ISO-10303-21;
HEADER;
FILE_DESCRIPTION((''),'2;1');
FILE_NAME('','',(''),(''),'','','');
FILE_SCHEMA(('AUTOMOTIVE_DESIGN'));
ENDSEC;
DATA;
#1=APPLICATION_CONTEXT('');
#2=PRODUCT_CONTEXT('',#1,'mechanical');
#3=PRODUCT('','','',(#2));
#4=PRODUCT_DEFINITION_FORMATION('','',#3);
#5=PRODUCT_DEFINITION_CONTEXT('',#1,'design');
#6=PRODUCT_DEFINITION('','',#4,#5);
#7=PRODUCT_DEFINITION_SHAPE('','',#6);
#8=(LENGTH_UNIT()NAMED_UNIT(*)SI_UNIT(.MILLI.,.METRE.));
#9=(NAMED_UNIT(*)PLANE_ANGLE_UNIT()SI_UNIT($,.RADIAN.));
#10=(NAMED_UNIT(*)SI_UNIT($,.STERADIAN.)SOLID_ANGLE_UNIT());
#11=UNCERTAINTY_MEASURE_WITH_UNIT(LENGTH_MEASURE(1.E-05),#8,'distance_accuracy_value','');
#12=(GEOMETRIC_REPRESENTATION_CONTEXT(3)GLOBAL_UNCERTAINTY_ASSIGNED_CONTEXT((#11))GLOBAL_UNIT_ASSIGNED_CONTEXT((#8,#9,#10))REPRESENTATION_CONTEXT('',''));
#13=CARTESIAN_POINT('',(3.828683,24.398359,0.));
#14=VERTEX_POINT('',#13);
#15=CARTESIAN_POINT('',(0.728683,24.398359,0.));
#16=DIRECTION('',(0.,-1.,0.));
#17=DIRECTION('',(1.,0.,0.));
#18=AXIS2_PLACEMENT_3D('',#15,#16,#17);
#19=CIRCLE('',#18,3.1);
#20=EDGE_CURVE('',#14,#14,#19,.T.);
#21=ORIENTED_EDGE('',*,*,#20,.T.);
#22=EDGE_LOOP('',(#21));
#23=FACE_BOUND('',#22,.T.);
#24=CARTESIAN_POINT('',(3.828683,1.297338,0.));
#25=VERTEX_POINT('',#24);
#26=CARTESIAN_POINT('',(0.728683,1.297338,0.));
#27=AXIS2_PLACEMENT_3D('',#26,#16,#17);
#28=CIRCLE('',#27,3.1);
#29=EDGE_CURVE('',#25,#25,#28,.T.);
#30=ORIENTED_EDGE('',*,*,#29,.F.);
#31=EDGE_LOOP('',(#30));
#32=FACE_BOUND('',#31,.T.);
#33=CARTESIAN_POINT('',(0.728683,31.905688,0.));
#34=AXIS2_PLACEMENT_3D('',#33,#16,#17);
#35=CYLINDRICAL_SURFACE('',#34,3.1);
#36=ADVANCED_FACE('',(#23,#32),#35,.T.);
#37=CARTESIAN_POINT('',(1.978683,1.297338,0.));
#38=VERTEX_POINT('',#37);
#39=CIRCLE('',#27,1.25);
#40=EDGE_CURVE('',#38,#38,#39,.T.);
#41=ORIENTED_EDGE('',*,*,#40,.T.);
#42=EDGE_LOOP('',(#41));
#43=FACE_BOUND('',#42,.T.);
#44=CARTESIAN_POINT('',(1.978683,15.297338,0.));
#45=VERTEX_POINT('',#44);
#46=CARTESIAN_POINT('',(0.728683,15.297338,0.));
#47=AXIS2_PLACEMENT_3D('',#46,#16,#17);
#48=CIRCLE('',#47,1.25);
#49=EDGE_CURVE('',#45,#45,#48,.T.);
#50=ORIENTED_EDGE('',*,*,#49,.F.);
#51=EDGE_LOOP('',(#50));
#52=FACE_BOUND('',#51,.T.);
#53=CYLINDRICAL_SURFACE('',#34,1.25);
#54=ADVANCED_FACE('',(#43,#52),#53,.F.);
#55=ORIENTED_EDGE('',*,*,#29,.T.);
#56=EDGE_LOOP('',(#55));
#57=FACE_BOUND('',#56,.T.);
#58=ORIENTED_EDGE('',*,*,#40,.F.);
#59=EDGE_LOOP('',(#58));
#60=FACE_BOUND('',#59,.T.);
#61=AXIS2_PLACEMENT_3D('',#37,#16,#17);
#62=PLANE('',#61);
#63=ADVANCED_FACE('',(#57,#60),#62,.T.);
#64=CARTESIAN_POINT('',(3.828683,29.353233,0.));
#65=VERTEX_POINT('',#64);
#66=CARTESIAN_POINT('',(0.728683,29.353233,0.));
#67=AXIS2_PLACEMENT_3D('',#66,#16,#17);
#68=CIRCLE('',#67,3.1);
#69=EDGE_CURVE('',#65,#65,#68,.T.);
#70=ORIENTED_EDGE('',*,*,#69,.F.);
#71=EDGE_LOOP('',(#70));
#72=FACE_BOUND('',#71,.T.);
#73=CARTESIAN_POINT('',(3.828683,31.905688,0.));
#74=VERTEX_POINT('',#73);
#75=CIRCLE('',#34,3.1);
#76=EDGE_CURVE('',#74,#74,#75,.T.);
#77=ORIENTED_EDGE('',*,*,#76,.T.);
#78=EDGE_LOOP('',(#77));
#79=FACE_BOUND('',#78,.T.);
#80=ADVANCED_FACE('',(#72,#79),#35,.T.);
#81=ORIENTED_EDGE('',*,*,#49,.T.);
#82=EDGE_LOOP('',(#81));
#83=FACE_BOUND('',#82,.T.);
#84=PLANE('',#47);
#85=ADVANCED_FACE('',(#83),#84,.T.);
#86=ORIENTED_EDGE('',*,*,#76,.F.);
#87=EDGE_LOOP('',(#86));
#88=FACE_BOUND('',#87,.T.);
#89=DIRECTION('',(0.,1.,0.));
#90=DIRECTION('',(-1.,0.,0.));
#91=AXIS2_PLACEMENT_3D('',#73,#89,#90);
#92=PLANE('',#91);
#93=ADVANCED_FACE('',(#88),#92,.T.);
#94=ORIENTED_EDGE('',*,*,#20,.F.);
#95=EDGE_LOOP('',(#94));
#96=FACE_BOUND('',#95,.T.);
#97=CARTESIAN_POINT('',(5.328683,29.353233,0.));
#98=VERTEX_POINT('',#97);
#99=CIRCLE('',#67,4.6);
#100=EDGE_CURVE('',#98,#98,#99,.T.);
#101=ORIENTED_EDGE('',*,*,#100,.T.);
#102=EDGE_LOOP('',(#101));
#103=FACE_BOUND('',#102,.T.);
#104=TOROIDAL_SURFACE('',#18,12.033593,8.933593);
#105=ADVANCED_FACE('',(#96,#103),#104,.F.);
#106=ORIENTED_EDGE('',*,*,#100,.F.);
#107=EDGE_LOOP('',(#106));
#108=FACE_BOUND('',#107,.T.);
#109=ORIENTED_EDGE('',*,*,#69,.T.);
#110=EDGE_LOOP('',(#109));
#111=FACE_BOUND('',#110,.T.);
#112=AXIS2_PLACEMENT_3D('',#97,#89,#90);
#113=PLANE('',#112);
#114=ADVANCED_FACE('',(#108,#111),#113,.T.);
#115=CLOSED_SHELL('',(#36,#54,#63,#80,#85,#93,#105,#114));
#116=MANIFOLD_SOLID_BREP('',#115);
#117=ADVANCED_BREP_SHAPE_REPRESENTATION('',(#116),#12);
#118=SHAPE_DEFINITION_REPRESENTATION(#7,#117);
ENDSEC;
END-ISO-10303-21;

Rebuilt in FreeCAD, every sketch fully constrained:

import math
import FreeCAD as App
import Part
import Sketcher
from FreeCAD import Vector

doc = App.newDocument("Part")
body = doc.addObject("PartDesign::Body", "Body")

# Sketch on XY plane
sketch1 = body.newObject("Sketcher::SketchObject", "Sketch")
sketch1.AttachmentSupport = (doc.getObject("XY_Plane"), [""])
sketch1.MapMode = "FlatFace"
sketch1.addGeometry([
    Part.LineSegment(Vector(3.828683, 31.905688, 0), Vector(0.728683, 31.905688, 0)),  # 0
    Part.LineSegment(Vector(0.728683, 31.905688, 0), Vector(0.728683, 15.297338, 0)),  # 1
    Part.LineSegment(Vector(0.728683, 15.297338, 0), Vector(1.978683, 15.297338, 0)),  # 2
    Part.LineSegment(Vector(1.978683, 15.297338, 0), Vector(1.978683, 1.297338, 0)),  # 3
    Part.LineSegment(Vector(1.978683, 1.297338, 0), Vector(3.828683, 1.297338, 0)),  # 4
    Part.LineSegment(Vector(3.828683, 1.297338, 0), Vector(3.828683, 24.398359, 0)),  # 5
    Part.ArcOfCircle(Part.Circle(Vector(12.762275, 24.398359, 0), Vector(0, 0, 1), 8.933593), math.radians(146.314491), math.radians(180)),  # 6
    Part.LineSegment(Vector(5.328683, 29.353233, 0), Vector(3.828683, 29.353233, 0)),  # 7
    Part.LineSegment(Vector(3.828683, 29.353233, 0), Vector(3.828683, 31.905688, 0)),  # 8
], False)
sketch1.addGeometry(Part.LineSegment(Vector(0.728683, 31.905688, 0), Vector(0.728683, 1.297338, 0)), True)  # axis
sketch1.addConstraint([
    Sketcher.Constraint("Coincident", 0, 2, 1, 1),
    Sketcher.Constraint("Coincident", 1, 2, 2, 1),
    Sketcher.Constraint("Coincident", 2, 2, 3, 1),
    Sketcher.Constraint("Coincident", 3, 2, 4, 1),
    Sketcher.Constraint("Coincident", 4, 2, 5, 1),
    Sketcher.Constraint("Tangent", 5, 2, 6, 2),
    Sketcher.Constraint("Coincident", 6, 1, 7, 1),
    Sketcher.Constraint("Coincident", 7, 2, 8, 1),
    Sketcher.Constraint("Coincident", 8, 2, 0, 1),
    Sketcher.Constraint("Horizontal", 0),
    Sketcher.Constraint("Vertical", 1),
    Sketcher.Constraint("Horizontal", 2),
    Sketcher.Constraint("Vertical", 3),
    Sketcher.Constraint("Horizontal", 4),
    Sketcher.Constraint("Vertical", 5),
    Sketcher.Constraint("Horizontal", 7),
    Sketcher.Constraint("Vertical", 8),
    Sketcher.Constraint("Vertical", 9),
    Sketcher.Constraint("Coincident", 9, 1, 0, 2),
    Sketcher.Constraint("Horizontal", 4, 2, 9, 2),
    Sketcher.Constraint("Vertical", 5, 2, 7, 2),
    Sketcher.Constraint("DistanceY", 3, 2, 3, 1, 14.0),
    Sketcher.Constraint("DistanceX", 0, 2, 0, 1, 3.1),
    Sketcher.Constraint("DistanceX", 7, 2, 7, 1, 1.5),
    Sketcher.Constraint("DistanceX", 2, 1, 2, 2, 1.25),
    Sketcher.Constraint("Radius", 6, 8.933593),
    Sketcher.Constraint("DistanceY", 1, 2, 1, 1, 16.60835),
    Sketcher.Constraint("DistanceY", 5, 1, 5, 2, 23.101021),
    Sketcher.Constraint("DistanceY", -1, 1, 6, 3, 24.398359),
    Sketcher.Constraint("DistanceX", -1, 1, 6, 3, 12.762275),
])
revolution = body.newObject("PartDesign::Revolution", "Revolution")
revolution.Profile = sketch1
revolution.ReferenceAxis = (sketch1, ["Axis0"])
revolution.Angle = 360

doc.recompute()
